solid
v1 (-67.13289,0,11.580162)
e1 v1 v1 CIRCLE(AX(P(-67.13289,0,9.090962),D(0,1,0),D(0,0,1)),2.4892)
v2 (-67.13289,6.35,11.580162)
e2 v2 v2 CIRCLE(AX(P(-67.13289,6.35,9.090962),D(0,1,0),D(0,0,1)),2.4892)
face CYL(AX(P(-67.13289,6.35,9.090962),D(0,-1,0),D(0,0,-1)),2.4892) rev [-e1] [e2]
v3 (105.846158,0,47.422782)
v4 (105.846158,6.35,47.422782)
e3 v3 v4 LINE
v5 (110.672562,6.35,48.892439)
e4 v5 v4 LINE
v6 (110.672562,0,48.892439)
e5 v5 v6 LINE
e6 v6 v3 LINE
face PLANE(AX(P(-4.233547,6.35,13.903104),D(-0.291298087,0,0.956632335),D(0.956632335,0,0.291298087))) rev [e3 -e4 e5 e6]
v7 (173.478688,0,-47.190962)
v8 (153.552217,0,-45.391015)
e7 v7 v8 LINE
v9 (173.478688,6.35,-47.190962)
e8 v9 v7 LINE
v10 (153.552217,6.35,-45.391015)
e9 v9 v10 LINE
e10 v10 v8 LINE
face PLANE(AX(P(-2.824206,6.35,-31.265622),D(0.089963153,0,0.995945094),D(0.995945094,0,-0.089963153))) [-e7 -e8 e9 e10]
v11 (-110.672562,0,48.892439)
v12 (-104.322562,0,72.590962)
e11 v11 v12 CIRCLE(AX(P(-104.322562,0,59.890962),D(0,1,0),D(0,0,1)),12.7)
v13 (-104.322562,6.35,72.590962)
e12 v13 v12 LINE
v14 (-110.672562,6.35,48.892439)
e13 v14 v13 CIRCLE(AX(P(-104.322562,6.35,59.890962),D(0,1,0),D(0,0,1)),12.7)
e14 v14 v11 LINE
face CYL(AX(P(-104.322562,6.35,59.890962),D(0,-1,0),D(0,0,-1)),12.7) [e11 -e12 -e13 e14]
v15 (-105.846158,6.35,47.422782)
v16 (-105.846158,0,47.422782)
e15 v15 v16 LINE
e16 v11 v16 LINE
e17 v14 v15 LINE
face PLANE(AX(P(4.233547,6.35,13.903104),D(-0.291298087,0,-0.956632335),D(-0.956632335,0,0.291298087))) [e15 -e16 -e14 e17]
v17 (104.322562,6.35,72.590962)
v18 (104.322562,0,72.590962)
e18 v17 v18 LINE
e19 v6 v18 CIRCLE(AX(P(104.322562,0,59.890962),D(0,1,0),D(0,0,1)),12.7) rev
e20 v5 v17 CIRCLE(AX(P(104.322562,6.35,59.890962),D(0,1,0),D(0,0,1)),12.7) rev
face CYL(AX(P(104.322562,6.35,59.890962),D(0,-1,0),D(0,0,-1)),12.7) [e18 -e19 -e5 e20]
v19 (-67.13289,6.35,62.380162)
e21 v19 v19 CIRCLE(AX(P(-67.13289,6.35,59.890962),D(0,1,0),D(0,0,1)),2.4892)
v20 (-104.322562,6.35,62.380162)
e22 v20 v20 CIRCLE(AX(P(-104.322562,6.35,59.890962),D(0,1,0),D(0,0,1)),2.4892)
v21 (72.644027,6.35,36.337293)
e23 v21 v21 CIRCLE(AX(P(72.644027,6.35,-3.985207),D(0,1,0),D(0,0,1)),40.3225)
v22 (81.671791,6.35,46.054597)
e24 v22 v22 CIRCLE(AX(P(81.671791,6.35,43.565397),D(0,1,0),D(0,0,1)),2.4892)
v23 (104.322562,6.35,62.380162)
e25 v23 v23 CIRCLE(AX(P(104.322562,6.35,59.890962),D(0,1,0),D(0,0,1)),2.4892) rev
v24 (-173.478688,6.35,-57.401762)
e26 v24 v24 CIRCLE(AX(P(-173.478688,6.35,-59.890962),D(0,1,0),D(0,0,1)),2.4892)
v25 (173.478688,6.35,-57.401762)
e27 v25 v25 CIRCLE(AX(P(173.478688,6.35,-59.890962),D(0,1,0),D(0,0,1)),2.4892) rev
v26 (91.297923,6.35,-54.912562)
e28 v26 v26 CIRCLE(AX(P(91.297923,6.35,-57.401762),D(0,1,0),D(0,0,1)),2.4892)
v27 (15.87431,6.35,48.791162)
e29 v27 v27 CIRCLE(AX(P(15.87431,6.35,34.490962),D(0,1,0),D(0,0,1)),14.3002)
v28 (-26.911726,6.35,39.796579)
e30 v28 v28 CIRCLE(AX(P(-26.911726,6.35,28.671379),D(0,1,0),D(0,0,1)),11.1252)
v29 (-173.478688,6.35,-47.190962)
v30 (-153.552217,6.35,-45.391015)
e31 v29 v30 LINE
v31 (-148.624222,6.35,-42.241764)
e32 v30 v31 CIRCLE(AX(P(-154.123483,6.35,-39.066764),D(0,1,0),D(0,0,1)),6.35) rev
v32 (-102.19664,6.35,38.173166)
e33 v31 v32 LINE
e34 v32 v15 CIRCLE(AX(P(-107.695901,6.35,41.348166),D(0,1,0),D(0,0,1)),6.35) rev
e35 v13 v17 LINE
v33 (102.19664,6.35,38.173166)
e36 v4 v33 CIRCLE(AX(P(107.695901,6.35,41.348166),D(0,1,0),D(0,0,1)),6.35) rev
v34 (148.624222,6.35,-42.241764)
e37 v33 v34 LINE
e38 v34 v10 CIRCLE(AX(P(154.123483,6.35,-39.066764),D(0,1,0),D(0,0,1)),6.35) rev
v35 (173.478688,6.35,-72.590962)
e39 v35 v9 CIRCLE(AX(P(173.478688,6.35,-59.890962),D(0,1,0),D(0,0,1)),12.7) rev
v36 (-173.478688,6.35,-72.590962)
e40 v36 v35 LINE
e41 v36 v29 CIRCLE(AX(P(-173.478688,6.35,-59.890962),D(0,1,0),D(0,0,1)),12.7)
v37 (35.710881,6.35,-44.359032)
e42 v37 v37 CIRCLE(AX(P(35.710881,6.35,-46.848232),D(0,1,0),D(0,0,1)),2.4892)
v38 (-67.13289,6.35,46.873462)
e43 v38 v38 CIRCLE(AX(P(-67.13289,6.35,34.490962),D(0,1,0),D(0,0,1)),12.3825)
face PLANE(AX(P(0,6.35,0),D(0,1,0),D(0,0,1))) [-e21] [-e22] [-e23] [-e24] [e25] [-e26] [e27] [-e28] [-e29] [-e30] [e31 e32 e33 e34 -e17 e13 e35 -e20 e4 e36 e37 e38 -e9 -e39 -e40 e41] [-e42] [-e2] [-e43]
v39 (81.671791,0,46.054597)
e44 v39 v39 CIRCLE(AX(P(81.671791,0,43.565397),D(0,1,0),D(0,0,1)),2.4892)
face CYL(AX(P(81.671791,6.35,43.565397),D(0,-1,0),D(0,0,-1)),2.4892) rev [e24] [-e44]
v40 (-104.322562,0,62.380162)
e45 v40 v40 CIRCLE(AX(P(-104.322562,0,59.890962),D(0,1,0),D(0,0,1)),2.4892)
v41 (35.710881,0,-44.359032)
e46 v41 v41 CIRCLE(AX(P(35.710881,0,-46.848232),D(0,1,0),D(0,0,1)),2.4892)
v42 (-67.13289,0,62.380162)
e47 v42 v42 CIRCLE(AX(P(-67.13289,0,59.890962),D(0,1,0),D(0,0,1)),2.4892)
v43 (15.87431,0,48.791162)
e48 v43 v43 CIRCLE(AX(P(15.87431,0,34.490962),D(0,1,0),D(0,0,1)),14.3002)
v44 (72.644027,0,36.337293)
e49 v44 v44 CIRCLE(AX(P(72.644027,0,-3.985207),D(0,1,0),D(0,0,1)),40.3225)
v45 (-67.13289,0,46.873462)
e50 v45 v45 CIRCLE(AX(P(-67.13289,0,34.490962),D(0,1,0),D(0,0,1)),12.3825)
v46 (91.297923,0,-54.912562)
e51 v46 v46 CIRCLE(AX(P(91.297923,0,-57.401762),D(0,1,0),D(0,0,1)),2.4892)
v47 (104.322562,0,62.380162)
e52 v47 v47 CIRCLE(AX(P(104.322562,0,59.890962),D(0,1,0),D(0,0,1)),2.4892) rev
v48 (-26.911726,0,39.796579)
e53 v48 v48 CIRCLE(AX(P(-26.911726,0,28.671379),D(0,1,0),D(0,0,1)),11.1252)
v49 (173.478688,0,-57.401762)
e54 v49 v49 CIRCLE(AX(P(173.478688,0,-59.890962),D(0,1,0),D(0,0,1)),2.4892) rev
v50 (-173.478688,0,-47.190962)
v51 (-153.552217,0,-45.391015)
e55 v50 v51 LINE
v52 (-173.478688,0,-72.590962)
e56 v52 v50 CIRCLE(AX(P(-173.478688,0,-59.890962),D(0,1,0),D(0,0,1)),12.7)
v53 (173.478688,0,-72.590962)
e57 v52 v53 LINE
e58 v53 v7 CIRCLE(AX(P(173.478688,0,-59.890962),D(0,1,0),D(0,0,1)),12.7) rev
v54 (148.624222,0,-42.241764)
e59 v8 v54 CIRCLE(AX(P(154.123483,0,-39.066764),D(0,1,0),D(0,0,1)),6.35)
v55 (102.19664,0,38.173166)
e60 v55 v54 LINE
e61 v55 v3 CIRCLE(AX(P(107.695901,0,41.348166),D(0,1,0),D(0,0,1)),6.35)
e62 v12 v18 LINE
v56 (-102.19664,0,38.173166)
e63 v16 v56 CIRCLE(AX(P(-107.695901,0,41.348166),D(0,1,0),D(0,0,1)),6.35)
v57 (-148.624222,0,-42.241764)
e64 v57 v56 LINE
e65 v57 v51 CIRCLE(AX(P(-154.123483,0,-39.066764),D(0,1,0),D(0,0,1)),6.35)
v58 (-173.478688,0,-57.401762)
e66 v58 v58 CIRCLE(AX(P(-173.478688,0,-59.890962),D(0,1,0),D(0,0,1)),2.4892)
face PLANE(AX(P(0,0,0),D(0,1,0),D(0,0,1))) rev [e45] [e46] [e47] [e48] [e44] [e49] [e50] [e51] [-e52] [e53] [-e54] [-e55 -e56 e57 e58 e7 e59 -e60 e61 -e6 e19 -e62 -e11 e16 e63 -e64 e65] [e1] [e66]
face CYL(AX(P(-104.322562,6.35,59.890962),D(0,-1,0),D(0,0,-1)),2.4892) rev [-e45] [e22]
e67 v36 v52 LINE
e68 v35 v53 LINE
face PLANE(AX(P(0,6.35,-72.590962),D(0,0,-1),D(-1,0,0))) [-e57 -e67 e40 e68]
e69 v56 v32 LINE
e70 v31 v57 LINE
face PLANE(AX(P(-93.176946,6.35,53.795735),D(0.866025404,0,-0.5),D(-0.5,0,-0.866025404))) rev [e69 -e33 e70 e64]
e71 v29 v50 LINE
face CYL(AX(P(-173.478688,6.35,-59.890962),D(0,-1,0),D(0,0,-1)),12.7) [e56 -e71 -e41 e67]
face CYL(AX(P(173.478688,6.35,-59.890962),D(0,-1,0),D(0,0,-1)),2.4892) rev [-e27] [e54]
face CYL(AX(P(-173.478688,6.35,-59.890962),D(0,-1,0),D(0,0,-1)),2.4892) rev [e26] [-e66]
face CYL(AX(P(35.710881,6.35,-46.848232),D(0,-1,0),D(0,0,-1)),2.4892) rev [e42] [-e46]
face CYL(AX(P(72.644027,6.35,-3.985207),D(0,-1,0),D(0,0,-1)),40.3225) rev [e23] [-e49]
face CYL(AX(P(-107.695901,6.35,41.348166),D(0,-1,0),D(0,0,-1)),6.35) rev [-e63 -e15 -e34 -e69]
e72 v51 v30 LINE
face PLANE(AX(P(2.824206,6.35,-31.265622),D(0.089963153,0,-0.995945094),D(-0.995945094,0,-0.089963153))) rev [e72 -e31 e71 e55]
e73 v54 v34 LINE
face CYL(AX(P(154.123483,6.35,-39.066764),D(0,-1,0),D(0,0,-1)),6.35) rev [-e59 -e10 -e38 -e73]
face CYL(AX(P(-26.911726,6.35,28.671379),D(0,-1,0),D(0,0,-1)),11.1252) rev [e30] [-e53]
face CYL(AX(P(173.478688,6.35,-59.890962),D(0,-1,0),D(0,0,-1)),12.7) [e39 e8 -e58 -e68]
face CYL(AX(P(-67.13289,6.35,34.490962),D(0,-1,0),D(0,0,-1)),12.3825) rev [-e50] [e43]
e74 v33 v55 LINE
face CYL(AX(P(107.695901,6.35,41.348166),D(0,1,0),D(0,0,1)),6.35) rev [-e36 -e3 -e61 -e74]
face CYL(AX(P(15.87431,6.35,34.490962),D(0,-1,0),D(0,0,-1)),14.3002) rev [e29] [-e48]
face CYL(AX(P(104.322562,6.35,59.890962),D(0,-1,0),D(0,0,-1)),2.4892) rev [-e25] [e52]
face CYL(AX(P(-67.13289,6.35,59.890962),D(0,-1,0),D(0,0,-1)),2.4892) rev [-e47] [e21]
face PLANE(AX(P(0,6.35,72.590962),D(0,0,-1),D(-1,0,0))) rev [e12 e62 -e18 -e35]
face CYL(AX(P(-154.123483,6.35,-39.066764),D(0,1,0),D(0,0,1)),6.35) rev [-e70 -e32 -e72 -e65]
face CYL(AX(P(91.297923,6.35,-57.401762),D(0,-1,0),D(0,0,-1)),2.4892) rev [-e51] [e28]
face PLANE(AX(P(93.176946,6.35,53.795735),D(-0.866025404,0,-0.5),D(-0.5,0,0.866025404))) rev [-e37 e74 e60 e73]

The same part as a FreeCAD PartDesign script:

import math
import FreeCAD as App
import Part
import Sketcher
Q = App.Units.Quantity


def edges_at(feature, points):
    """Names of the edges that pass closest to the given points."""
    edges = feature.Shape.Edges
    near = lambda p: min(range(len(edges)), key=lambda i: edges[i].distToShape(Part.Vertex(*p))[0])
    return sorted({f"Edge{near(p) + 1}" for p in points})

doc = App.newDocument("Part")
body = doc.addObject("PartDesign::Body", "Body")

# Sketch on XZ plane
sketch1 = body.newObject("Sketcher::SketchObject", "Sketch")
sketch1.AttachmentSupport = (doc.getObject("XZ_Plane"), [""])
sketch1.MapMode = "FlatFace"
sketch1.addGeometry([
    Part.ArcOfCircle(Part.Circle(App.Vector(-173.5, -59.9, 0), App.Vector(0, 0, 1), 12.7), math.radians(90), math.radians(270)),  # 0
    Part.LineSegment(App.Vector(-173.5, -47.2, 0), App.Vector(-150.3, -45.1, 0)),  # 1
    Part.LineSegment(App.Vector(-150.3, -45.1, 0), App.Vector(-98.2, 45.1, 0)),  # 2
    Part.LineSegment(App.Vector(-98.2, 45.1, 0), App.Vector(-110.7, 48.9, 0)),  # 3
    Part.ArcOfCircle(Part.Circle(App.Vector(-104.3, 59.9, 0), App.Vector(0, 0, 1), 12.7), math.radians(90), math.radians(240)),  # 4
    Part.LineSegment(App.Vector(-104.3, 72.6, 0), App.Vector(104.3, 72.6, 0)),  # 5
    Part.ArcOfCircle(Part.Circle(App.Vector(104.3, 59.9, 0), App.Vector(0, 0, 1), 12.7), math.radians(-60), math.radians(90)),  # 6
    Part.LineSegment(App.Vector(110.7, 48.9, 0), App.Vector(98.2, 45.1, 0)),  # 7
    Part.LineSegment(App.Vector(98.2, 45.1, 0), App.Vector(150.3, -45.1, 0)),  # 8
    Part.LineSegment(App.Vector(150.3, -45.1, 0), App.Vector(173.5, -47.2, 0)),  # 9
    Part.ArcOfCircle(Part.Circle(App.Vector(173.5, -59.9, 0), App.Vector(0, 0, 1), 12.7), math.radians(-90), math.radians(90)),  # 10
    Part.LineSegment(App.Vector(173.5, -72.6, 0), App.Vector(-173.5, -72.6, 0)),  # 11
    Part.Circle(App.Vector(-104.3, 59.9, 0), App.Vector(0, 0, 1), 2.5),  # 12
    Part.Circle(App.Vector(-67.1, 59.9, 0), App.Vector(0, 0, 1), 2.5),  # 13
    Part.Circle(App.Vector(-67.1, 34.5, 0), App.Vector(0, 0, 1), 12.4),  # 14
    Part.Circle(App.Vector(-26.9, 28.7, 0), App.Vector(0, 0, 1), 11.1),  # 15
    Part.Circle(App.Vector(-67.1, 9.1, 0), App.Vector(0, 0, 1), 2.5),  # 16
    Part.Circle(App.Vector(15.9, 34.5, 0), App.Vector(0, 0, 1), 14.3),  # 17
    Part.Circle(App.Vector(81.7, 43.6, 0), App.Vector(0, 0, 1), 2.5),  # 18
    Part.Circle(App.Vector(104.3, 59.9, 0), App.Vector(0, 0, 1), 2.5),  # 19
    Part.Circle(App.Vector(-173.5, -59.9, 0), App.Vector(0, 0, 1), 2.5),  # 20
    Part.Circle(App.Vector(72.6, -4, 0), App.Vector(0, 0, 1), 40.3),  # 21
    Part.Circle(App.Vector(35.7, -46.8, 0), App.Vector(0, 0, 1), 2.5),  # 22
    Part.Circle(App.Vector(91.3, -57.4, 0), App.Vector(0, 0, 1), 2.5),  # 23
    Part.Circle(App.Vector(173.5, -59.9, 0), App.Vector(0, 0, 1), 2.5),  # 24
], False)
sketch1.addConstraint([
    Sketcher.Constraint("Coincident", 0, 1, 1, 1),
    Sketcher.Constraint("Coincident", 1, 2, 2, 1),
    Sketcher.Constraint("Coincident", 2, 2, 3, 1),
    Sketcher.Constraint("Coincident", 3, 2, 4, 2),
    Sketcher.Constraint("Tangent", 4, 1, 5, 1),
    Sketcher.Constraint("Tangent", 5, 2, 6, 2),
    Sketcher.Constraint("Coincident", 6, 1, 7, 1),
    Sketcher.Constraint("Coincident", 7, 2, 8, 1),
    Sketcher.Constraint("Coincident", 8, 2, 9, 1),
    Sketcher.Constraint("Coincident", 9, 2, 10, 2),
    Sketcher.Constraint("Tangent", 10, 1, 11, 1),
    Sketcher.Constraint("Tangent", 11, 2, 0, 2),
    Sketcher.Constraint("Horizontal", 5),
    Sketcher.Constraint("Horizontal", 11),
    Sketcher.Constraint("Coincident", 12, 3, 4, 3),
    Sketcher.Constraint("Coincident", 19, 3, 6, 3),
    Sketcher.Constraint("Coincident", 20, 3, 0, 3),
    Sketcher.Constraint("Coincident", 24, 3, 10, 3),
    Sketcher.Constraint("Equal", 0, 4),
    Sketcher.Constraint("Equal", 4, 6),
    Sketcher.Constraint("Equal", 6, 10),
    Sketcher.Constraint("Equal", 12, 13),
    Sketcher.Constraint("Equal", 13, 16),
    Sketcher.Constraint("Equal", 16, 18),
    Sketcher.Constraint("Equal", 18, 19),
    Sketcher.Constraint("Equal", 19, 20),
    Sketcher.Constraint("Equal", 20, 22),
    Sketcher.Constraint("Equal", 22, 23),
    Sketcher.Constraint("Equal", 23, 24),
    Sketcher.Constraint("Symmetric", 3, 2, 6, 1, -2),
    Sketcher.Constraint("Symmetric", 2, 2, 7, 2, -2),
    Sketcher.Constraint("Symmetric", 1, 2, 8, 2, -2),
    Sketcher.Constraint("Horizontal", 12, 3, 13, 3),
    Sketcher.Constraint("Horizontal", 14, 3, 17, 3),
    Sketcher.Constraint("Vertical", 13, 3, 14, 3),
    Sketcher.Constraint("Vertical", 14, 3, 16, 3),
    Sketcher.Constraint("Vertical", 20, 3, 0, 1),
    Sketcher.Constraint("Vertical", 24, 3, 9, 2),
    Sketcher.Constraint("Equal", 1, 9),
    Sketcher.Constraint("Radius", 0, Q("0.5 in")),
    Sketcher.Constraint("Diameter", 12, Q("0.196 in")),
    Sketcher.Constraint("Diameter", 14, Q("0.975 in")),
    Sketcher.Constraint("Diameter", 15, Q("0.876 in")),
    Sketcher.Constraint("Diameter", 17, Q("1.126 in")),
    Sketcher.Constraint("Diameter", 21, Q("3.175 in")),
    Sketcher.Constraint("Angle", 2, Q("60 deg")),
    Sketcher.Constraint("DistanceY", 14, 3, 13, 3, Q("1 in")),
    Sketcher.Constraint("DistanceY", 16, 3, 14, 3, Q("1 in")),
    Sketcher.Constraint("DistanceX", 3, 2, 4, 3, Q("0.25 in")),
    Sketcher.Constraint("DistanceX", 14, 3, 17, 3, Q("3.268 in")),
    Sketcher.Constraint("DistanceY", 10, 3, 23, 3, Q("0.098 in")),
    Sketcher.Constraint("Distance", 3, Q("13.037449 mm")),
    Sketcher.Constraint("DistanceX", 5, 1, 5, 2, Q("208.645123 mm")),
    Sketcher.Constraint("DistanceX", 11, 2, 11, 1, Q("346.957376 mm")),
    Sketcher.Constraint("DistanceX", 13, 3, -1, 1, Q("67.13289 mm")),
    Sketcher.Constraint("DistanceY", -1, 1, 15, 3, Q("28.671379 mm")),
    Sketcher.Constraint("DistanceX", -1, 1, 18, 3, Q("81.671791 mm")),
    Sketcher.Constraint("DistanceX", -1, 1, 22, 3, Q("35.710881 mm")),
    Sketcher.Constraint("DistanceX", 1, 2, -1, 1, Q("150.271339 mm")),
    Sketcher.Constraint("DistanceY", -1, 1, 3, 2, Q("48.892439 mm")),
    Sketcher.Constraint("DistanceY", 15, 3, 18, 3, Q("14.894018 mm")),
    Sketcher.Constraint("DistanceY", 10, 3, 18, 3, Q("103.456359 mm")),
    Sketcher.Constraint("DistanceY", 21, 3, 17, 3, Q("38.476169 mm")),
    Sketcher.Constraint("DistanceY", 22, 3, 15, 3, Q("75.519612 mm")),
    Sketcher.Constraint("DistanceX", 23, 3, 6, 3, Q("13.024638 mm")),
    Sketcher.Constraint("DistanceX", 21, 3, 24, 3, Q("100.834661 mm")),
    Sketcher.Constraint("DistanceY", 18, 3, 7, 2, Q("1.529258 mm")),
    Sketcher.Constraint("DistanceX", 15, 3, -1, 1, Q("26.911726 mm")),
])
pad1 = body.newObject("PartDesign::Pad", "Pad")
pad1.Profile = sketch1
pad1.Length = Q("0.25 in")
pad1.Reversed = True
doc.recompute()

fillet = body.newObject("PartDesign::Fillet", "Fillet")
fillet.Base = (pad1, edges_at(pad1, [
    (150.271, 3.175, -45.095),
    (98.201, 3.175, 45.095),
    (-98.201, 3.175, 45.095),
    (-150.271, 3.175, -45.095),
]))
fillet.Radius = Q("0.25 in")

doc.recompute()
